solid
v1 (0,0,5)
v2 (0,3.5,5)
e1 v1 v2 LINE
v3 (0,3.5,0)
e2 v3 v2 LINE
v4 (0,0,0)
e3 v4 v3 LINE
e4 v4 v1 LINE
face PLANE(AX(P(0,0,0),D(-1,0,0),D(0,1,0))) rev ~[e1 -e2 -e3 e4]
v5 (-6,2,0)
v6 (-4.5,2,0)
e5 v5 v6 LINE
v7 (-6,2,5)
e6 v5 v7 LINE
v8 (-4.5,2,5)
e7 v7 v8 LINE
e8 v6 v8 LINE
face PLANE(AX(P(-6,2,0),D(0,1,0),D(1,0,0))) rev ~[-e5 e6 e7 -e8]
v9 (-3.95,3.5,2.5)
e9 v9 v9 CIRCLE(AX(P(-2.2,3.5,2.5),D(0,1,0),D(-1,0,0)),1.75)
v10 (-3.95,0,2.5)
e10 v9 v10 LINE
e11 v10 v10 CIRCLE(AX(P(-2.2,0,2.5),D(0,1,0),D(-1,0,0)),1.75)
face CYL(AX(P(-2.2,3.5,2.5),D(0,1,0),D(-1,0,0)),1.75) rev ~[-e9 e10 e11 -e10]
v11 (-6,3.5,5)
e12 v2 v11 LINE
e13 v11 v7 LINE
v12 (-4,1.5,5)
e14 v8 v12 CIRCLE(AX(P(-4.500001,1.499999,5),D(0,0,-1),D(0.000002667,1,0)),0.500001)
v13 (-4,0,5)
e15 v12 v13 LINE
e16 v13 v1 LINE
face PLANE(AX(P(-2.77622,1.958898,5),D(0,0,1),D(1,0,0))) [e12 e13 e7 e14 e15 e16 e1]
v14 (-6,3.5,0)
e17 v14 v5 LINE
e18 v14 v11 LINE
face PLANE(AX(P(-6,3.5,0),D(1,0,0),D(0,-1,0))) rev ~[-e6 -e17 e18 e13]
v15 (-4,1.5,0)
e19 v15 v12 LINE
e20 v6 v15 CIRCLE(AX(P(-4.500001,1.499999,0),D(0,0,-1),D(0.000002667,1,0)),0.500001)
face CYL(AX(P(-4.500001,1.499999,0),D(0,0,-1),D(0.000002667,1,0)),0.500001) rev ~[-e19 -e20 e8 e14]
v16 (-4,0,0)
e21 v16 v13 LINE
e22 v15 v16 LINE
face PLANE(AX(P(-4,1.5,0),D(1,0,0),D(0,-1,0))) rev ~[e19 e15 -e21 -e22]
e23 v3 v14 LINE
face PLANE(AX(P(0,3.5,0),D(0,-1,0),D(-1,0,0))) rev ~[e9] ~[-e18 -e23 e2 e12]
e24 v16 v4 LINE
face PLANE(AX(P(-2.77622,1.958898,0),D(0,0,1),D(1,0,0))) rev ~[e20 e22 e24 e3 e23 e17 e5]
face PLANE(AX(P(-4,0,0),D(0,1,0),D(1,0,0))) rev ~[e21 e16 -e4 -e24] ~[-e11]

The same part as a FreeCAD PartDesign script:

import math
import FreeCAD as App
import Part
import Sketcher

doc = App.newDocument("Part")
body = doc.addObject("PartDesign::Body", "Body")

sketch1 = doc.addObject("Sketcher::SketchObject", "Sketch")
body.addObject(sketch1)
sketch1.AttachmentSupport = (doc.XY_Plane, [""])
sketch1.MapMode = "FlatFace"
sketch1.addGeometry([
    Part.LineSegment(App.Vector(-4, 0, 0), App.Vector(0, 0, 0)),
    Part.LineSegment(App.Vector(0, 0, 0), App.Vector(0, 3.5, 0)),
    Part.LineSegment(App.Vector(0, 3.5, 0), App.Vector(-6, 3.5, 0)),
    Part.LineSegment(App.Vector(-6, 3.5, 0), App.Vector(-6, 2, 0)),
    Part.LineSegment(App.Vector(-6, 2, 0), App.Vector(-4.5, 2, 0)),
    Part.ArcOfCircle(Part.Circle(App.Vector(-4.500001, 1.499999, 0), App.Vector(0, 0, 1), 0.500001), math.radians(0.000153), math.radians(89.999847)),
    Part.LineSegment(App.Vector(-4, 1.5, 0), App.Vector(-4, 0, 0)),
], False)
sketch1.addConstraint([
    Sketcher.Constraint("Coincident", 0, 2, 1, 1),
    Sketcher.Constraint("Coincident", 1, 2, 2, 1),
    Sketcher.Constraint("Coincident", 2, 2, 3, 1),
    Sketcher.Constraint("Coincident", 3, 2, 4, 1),
    Sketcher.Constraint("Coincident", 4, 2, 5, 2),
    Sketcher.Constraint("Coincident", 5, 1, 6, 1),
    Sketcher.Constraint("Coincident", 6, 2, 0, 1),
    Sketcher.Constraint("Horizontal", 0),
    Sketcher.Constraint("Vertical", 1),
    Sketcher.Constraint("Horizontal", 2),
    Sketcher.Constraint("Vertical", 3),
    Sketcher.Constraint("Horizontal", 4),
    Sketcher.Constraint("Vertical", 6),
    Sketcher.Constraint("Coincident", 0, 2, -1, 1),
    Sketcher.Constraint("Vertical", 5, 3, 4, 2),
    Sketcher.Constraint("Equal", 4, 3),
    Sketcher.Constraint("Equal", 3, 6),
    Sketcher.Constraint("Radius", 5, 0.500001),
    Sketcher.Constraint("DistanceX", 0, 1, 0, 2, 4.0),
    Sketcher.Constraint("DistanceX", 2, 2, 2, 1, 6.0),
    Sketcher.Constraint("DistanceY", 1, 1, 1, 2, 3.5),
])
pad1 = doc.addObject("PartDesign::Pad", "Pad")
body.addObject(pad1)
pad1.Profile = sketch1
pad1.Length = 5

sketch2 = doc.addObject("Sketcher::SketchObject", "Sketch001")
body.addObject(sketch2)
sketch2.AttachmentSupport = (doc.XZ_Plane, [""])
sketch2.MapMode = "FlatFace"
sketch2.AttachmentOffset = App.Placement(App.Vector(0, 0, -3.5), App.Rotation())
sketch2.addGeometry(Part.Circle(App.Vector(-2.2, 2.5, 0), App.Vector(0, 0, 1), 1.75), False)
sketch2.addConstraint([
    Sketcher.Constraint("Diameter", 0, 3.5),
    Sketcher.Constraint("DistanceX", 0, 3, -1, 1, 2.2),
    Sketcher.Constraint("DistanceY", -1, 1, 0, 3, 2.5),
])
pocket1 = doc.addObject("PartDesign::Pocket", "Pocket")
body.addObject(pocket1)
pocket1.Profile = sketch2
pocket1.Length = 25
pocket1.Reversed = True

doc.recompute()
